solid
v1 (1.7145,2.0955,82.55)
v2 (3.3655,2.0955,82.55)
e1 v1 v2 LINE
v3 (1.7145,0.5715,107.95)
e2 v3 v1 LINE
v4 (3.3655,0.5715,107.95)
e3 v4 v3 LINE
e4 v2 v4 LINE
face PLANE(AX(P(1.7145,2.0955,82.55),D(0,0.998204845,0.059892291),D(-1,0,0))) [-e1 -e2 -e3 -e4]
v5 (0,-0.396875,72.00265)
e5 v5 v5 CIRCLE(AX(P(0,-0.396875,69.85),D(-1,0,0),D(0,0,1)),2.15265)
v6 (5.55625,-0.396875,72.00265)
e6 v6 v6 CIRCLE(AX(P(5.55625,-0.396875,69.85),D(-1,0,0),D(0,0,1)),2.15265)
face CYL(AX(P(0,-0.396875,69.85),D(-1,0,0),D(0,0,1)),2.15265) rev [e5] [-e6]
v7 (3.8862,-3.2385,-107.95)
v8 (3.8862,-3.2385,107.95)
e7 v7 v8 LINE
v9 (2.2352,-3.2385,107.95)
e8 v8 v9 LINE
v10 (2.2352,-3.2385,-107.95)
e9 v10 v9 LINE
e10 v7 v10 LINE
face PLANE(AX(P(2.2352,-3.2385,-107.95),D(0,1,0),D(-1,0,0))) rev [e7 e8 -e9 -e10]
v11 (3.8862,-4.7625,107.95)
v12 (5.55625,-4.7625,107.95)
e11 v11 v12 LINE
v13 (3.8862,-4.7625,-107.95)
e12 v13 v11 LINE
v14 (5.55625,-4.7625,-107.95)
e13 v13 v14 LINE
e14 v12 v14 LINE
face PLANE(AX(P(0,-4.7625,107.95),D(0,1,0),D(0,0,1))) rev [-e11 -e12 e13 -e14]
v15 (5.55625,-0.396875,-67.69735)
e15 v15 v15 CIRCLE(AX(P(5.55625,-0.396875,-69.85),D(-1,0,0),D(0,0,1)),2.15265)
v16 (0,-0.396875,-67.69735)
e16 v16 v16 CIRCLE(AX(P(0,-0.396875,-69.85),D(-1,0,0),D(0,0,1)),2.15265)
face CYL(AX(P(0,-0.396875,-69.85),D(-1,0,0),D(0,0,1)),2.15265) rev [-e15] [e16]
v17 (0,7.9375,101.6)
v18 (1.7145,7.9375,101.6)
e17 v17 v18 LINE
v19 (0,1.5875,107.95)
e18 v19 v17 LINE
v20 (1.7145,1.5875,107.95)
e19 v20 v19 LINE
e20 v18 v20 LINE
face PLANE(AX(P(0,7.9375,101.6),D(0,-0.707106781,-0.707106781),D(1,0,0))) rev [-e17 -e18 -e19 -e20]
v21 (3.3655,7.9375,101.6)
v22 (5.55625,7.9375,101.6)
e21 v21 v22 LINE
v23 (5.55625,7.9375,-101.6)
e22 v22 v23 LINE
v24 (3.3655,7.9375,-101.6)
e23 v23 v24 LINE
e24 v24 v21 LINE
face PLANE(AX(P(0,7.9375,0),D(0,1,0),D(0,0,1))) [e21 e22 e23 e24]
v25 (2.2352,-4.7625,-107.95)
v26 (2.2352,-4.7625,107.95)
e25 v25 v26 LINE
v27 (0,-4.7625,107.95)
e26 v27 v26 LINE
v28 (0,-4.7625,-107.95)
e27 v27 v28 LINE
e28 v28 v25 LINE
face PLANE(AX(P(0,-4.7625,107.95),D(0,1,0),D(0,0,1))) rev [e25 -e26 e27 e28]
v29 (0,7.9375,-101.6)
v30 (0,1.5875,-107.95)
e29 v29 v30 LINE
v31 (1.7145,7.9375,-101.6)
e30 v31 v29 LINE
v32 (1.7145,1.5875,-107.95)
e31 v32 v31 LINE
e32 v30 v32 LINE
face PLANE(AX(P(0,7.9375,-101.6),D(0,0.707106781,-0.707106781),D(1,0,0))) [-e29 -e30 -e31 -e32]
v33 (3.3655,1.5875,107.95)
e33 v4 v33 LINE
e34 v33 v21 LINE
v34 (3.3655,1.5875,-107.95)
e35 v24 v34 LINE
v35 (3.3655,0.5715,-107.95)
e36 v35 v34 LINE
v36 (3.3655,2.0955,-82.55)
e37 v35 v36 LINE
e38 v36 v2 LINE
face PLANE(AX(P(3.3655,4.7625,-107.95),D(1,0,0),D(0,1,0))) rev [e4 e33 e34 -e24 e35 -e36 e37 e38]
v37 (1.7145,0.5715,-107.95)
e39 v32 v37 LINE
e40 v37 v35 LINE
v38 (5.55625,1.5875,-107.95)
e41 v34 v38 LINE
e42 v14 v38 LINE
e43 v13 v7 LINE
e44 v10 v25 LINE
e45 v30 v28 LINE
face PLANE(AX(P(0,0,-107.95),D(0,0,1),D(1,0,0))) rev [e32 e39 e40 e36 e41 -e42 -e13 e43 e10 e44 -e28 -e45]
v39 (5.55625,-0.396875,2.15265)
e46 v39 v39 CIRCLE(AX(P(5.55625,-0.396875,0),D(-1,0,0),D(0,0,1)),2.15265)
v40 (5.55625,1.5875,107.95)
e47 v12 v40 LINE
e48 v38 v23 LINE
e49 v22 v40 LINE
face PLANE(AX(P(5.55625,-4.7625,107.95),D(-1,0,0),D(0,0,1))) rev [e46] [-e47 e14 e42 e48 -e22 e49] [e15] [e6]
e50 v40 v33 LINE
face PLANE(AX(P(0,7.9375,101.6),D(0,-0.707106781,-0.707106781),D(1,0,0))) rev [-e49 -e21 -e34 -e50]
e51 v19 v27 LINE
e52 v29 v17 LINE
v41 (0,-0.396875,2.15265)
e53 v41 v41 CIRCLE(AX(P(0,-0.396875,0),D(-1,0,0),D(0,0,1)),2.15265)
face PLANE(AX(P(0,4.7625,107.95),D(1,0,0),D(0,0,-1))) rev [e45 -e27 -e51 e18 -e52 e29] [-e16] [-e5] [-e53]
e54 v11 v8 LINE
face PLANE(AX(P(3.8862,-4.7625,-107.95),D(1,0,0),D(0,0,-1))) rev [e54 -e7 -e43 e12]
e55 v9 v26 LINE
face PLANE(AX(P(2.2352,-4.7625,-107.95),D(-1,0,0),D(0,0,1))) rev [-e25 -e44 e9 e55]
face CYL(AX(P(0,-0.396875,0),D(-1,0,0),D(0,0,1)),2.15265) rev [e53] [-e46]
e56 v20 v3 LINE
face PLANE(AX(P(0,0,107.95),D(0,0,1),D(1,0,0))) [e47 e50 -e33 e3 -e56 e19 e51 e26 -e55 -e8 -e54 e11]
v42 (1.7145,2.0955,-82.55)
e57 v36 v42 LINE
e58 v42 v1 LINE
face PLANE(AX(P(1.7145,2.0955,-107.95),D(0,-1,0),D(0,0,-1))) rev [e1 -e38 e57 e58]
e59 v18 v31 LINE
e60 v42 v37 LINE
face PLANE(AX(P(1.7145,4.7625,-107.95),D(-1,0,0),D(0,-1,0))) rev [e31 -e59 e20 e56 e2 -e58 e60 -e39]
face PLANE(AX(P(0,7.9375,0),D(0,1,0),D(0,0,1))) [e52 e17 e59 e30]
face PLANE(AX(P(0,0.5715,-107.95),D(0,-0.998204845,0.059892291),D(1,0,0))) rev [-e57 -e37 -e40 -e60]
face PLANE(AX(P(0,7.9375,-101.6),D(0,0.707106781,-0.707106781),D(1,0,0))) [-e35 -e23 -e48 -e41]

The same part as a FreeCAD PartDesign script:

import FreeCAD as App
import Part
import Sketcher
Q = App.Units.Quantity


def edges_at(feature, points):
    """Names of the edges that pass closest to the given points."""
    edges = feature.Shape.Edges
    near = lambda p: min(range(len(edges)), key=lambda i: edges[i].distToShape(Part.Vertex(*p))[0])
    return sorted({f"Edge{near(p) + 1}" for p in points})


def add_polygon(sketch, points):
    """Adds a closed chain of lines whose ends are joined by coincident constraints."""
    first, n = sketch.GeometryCount, len(points)
    for a, b in zip(points, points[1:] + points[:1]):
        sketch.addGeometry(Part.LineSegment(App.Vector(*a, 0), App.Vector(*b, 0)), False)
    for i in range(n):
        sketch.addConstraint(Sketcher.Constraint("Coincident", first + i, 2, first + (i + 1) % n, 1))

doc = App.newDocument("Part")
params = doc.addObject("Spreadsheet::Sheet", "Params")
for row, (alias, value) in enumerate([
    ("sketch1_width", "0.21875 in"),
    ("sketch1_height", "0.375 in"),
    ("pad1_length", "8.5 in"),
    ("sketch2_width", "0.065 in"),
    ("sketch2_height", "0.105 in"),
    ("sketch3_height", "0.06 in"),
    ("sketch3_width", "0.065 in"),
    ("hole_diameter", "0.1695 in"),
    ("chamfer_size", "0.06 in"),
    ("chamfer_size2", "1 in"),
    ("chamfer2_size", "1 in"),
    ("chamfer2_size2", "0.06 in"),
    ("sketch5_height", "8.5 in"),
    ("pad2_length", "0.125 in"),
    ("chamfer3_size", "0.25 in"),
], start=1):
    params.set(f"A{row}", alias)
    params.set(f"B{row}", "=" + value)
    params.setAlias(f"B{row}", alias)

body = doc.addObject("PartDesign::Body", "Body")

# Sketch on XY plane
sketch1 = body.newObject("Sketcher::SketchObject", "Sketch")
sketch1.AttachmentSupport = (doc.getObject("XY_Plane"), [""])
sketch1.MapMode = "FlatFace"
add_polygon(sketch1, [(0, 5), (0, -5), (6, -5), (6, 5)])  # lines 0-3
sketch1.addConstraint(Sketcher.Constraint("Vertical", 0))
sketch1.addConstraint(Sketcher.Constraint("Horizontal", 1))
sketch1.addConstraint(Sketcher.Constraint("Vertical", 2))
sketch1.addConstraint(Sketcher.Constraint("Horizontal", 3))
sketch1.addConstraint(Sketcher.Constraint("Symmetric", 0, 2, 3, 2, -1, 1))
sketch1.addConstraint(Sketcher.Constraint("DistanceX", 1, 1, 1, 2, Q("0.21875 in")))
sketch1.addConstraint(Sketcher.Constraint("DistanceY", 0, 2, 0, 1, Q("0.375 in")))
sketch1.setExpression("Constraints[9]", "Params.sketch1_width")
sketch1.setExpression("Constraints[10]", "Params.sketch1_height")
pad1 = body.newObject("PartDesign::Pad", "Pad")
pad1.Profile = sketch1
pad1.setExpression("Length", "Params.pad1_length")
pad1.Midplane = True

# Sketch on XY plane
sketch2 = body.newObject("Sketcher::SketchObject", "Sketch001")
sketch2.AttachmentSupport = (doc.getObject("XY_Plane"), [""])
sketch2.MapMode = "FlatFace"
sketch2.AttachmentOffset = App.Placement(App.Vector(0, 0, 4.25 * 25.4), App.Rotation())
add_polygon(sketch2, [(1.7, 4.8), (1.7, 2.1), (3.4, 2.1), (3.4, 4.8)])  # lines 0-3
sketch2.addConstraint(Sketcher.Constraint("Vertical", 0))
sketch2.addConstraint(Sketcher.Constraint("Horizontal", 1))
sketch2.addConstraint(Sketcher.Constraint("Vertical", 2))
sketch2.addConstraint(Sketcher.Constraint("Horizontal", 3))
sketch2.addConstraint(Sketcher.Constraint("DistanceX", 1, 1, 1, 2, Q("0.065 in")))
sketch2.addConstraint(Sketcher.Constraint("DistanceY", 0, 2, 0, 1, Q("0.105 in")))
sketch2.addConstraint(Sketcher.Constraint("DistanceY", -1, 1, 2, 2, Q("0.1875 in")))
sketch2.addConstraint(Sketcher.Constraint("DistanceX", -1, 1, 0, 2, Q("0.0675 in")))
sketch2.setExpression("Constraints[8]", "Params.sketch2_width")
sketch2.setExpression("Constraints[9]", "Params.sketch2_height")
pocket1 = body.newObject("PartDesign::Pocket", "Pocket")
pocket1.Profile = sketch2
pocket1.Type = "ThroughAll"

# Sketch on XY plane
sketch3 = body.newObject("Sketcher::SketchObject", "Sketch002")
sketch3.AttachmentSupport = (doc.getObject("XY_Plane"), [""])
sketch3.MapMode = "FlatFace"
sketch3.AttachmentOffset = App.Placement(App.Vector(0, 0, 4.25 * 25.4), App.Rotation())
add_polygon(sketch3, [(2.2, -3.2), (2.2, -4.8), (3.9, -4.8), (3.9, -3.2)])  # lines 0-3
sketch3.addConstraint(Sketcher.Constraint("Vertical", 0))
sketch3.addConstraint(Sketcher.Constraint("Horizontal", 1))
sketch3.addConstraint(Sketcher.Constraint("Vertical", 2))
sketch3.addConstraint(Sketcher.Constraint("Horizontal", 3))
sketch3.addConstraint(Sketcher.Constraint("DistanceY", 0, 2, 0, 1, Q("0.06 in")))
sketch3.addConstraint(Sketcher.Constraint("DistanceX", 1, 1, 1, 2, Q("0.065 in")))
sketch3.addConstraint(Sketcher.Constraint("DistanceX", -1, 1, 0, 2, Q("0.088 in")))
sketch3.addConstraint(Sketcher.Constraint("DistanceY", 0, 2, -1, 1, Q("0.1875 in")))
sketch3.setExpression("Constraints[8]", "Params.sketch3_height")
sketch3.setExpression("Constraints[9]", "Params.sketch3_width")
pocket2 = body.newObject("PartDesign::Pocket", "Pocket001")
pocket2.Profile = sketch3
pocket2.Type = "ThroughAll"

# Sketch on YZ plane
sketch4 = body.newObject("Sketcher::SketchObject", "Sketch003")
sketch4.AttachmentSupport = (doc.getObject("YZ_Plane"), [""])
sketch4.MapMode = "FlatFace"
sketch4.addGeometry(Part.Circle(App.Vector(-0.4, 69.8, 0), App.Vector(0, 0, 1), 2.2), False)
sketch4.addGeometry(Part.Circle(App.Vector(-0.4, -69.8, 0), App.Vector(0, 0, 1), 2.2), False)
sketch4.addGeometry(Part.Circle(App.Vector(-0.4, 0, 0), App.Vector(0, 0, 1), 2.2), False)
sketch4.addConstraint(Sketcher.Constraint("Equal", 0, 1))
sketch4.addConstraint(Sketcher.Constraint("Equal", 1, 2))
sketch4.addConstraint(Sketcher.Constraint("Symmetric", 0, 3, 1, 3, -1))
sketch4.addConstraint(Sketcher.Constraint("PointOnObject", 2, 3, -1))
sketch4.addConstraint(Sketcher.Constraint("Vertical", 1, 3, 2, 3))
sketch4.addConstraint(Sketcher.Constraint("Diameter", 0, Q("0.1695 in")))
sketch4.addConstraint(Sketcher.Constraint("DistanceY", 1, 3, 0, 3, Q("5.5 in")))
sketch4.addConstraint(Sketcher.Constraint("DistanceX", 0, 3, -1, 1, Q("0.015625 in")))
doc.recompute()
hole = body.newObject("PartDesign::Hole", "Hole")
hole.Profile = sketch4
hole.ThreadType = "None"
hole.setExpression("Diameter", "Params.hole_diameter")
hole.DepthType = "ThroughAll"
hole.Reversed = True
doc.recompute()

chamfer = body.newObject("PartDesign::Chamfer", "Chamfer")
chamfer.Base = (hole, edges_at(hole, [(2.54, 2.095, 107.95)]))
chamfer.ChamferType = "Two distances"
chamfer.setExpression("Size", "Params.chamfer_size")
chamfer.setExpression("Size2", "Params.chamfer_size2")
doc.recompute()

chamfer2 = body.newObject("PartDesign::Chamfer", "Chamfer001")
chamfer2.Base = (chamfer, edges_at(chamfer, [(2.54, 2.095, -107.95)]))
chamfer2.ChamferType = "Two distances"
chamfer2.setExpression("Size", "Params.chamfer2_size")
chamfer2.setExpression("Size2", "Params.chamfer2_size2")

# Sketch on XZ plane
sketch5 = body.newObject("Sketcher::SketchObject", "Sketch004")
sketch5.AttachmentSupport = (doc.getObject("XZ_Plane"), [""])
sketch5.MapMode = "FlatFace"
sketch5.AttachmentOffset = App.Placement(App.Vector(0, 0, -0.1875 * 25.4), App.Rotation())
add_polygon(sketch5, [(0, -108), (0, 108), (1.7, 108), (1.7, -108)])  # lines 0-3
add_polygon(sketch5, [(3.4, -108), (3.4, 108), (5.6, 108), (5.6, -108)])  # lines 4-7
sketch5.addConstraint(Sketcher.Constraint("Vertical", 0))
sketch5.addConstraint(Sketcher.Constraint("Horizontal", 1))
sketch5.addConstraint(Sketcher.Constraint("Vertical", 2))
sketch5.addConstraint(Sketcher.Constraint("Horizontal", 3))
sketch5.addConstraint(Sketcher.Constraint("Vertical", 4))
sketch5.addConstraint(Sketcher.Constraint("Horizontal", 5))
sketch5.addConstraint(Sketcher.Constraint("Vertical", 6))
sketch5.addConstraint(Sketcher.Constraint("Horizontal", 7))
sketch5.addConstraint(Sketcher.Constraint("Symmetric", 0, 2, 3, 2, -1, 1))
sketch5.addConstraint(Sketcher.Constraint("Horizontal", 1, 2, 4, 2))
sketch5.addConstraint(Sketcher.Constraint("Horizontal", 3, 2, 6, 2))
sketch5.addConstraint(Sketcher.Constraint("DistanceY", 0, 1, 0, 2, Q("8.5 in")))
sketch5.addConstraint(Sketcher.Constraint("DistanceX", 1, 1, 1, 2, Q("0.0675 in")))
sketch5.addConstraint(Sketcher.Constraint("DistanceX", -1, 1, 5, 2, Q("0.21875 in")))
sketch5.addConstraint(Sketcher.Constraint("DistanceX", 1, 2, 4, 2, Q("0.065 in")))
sketch5.setExpression("Constraints[19]", "Params.sketch5_height")
pad2 = body.newObject("PartDesign::Pad", "Pad001")
pad2.Profile = sketch5
pad2.setExpression("Length", "Params.pad2_length")
pad2.Reversed = True
doc.recompute()

chamfer3 = body.newObject("PartDesign::Chamfer", "Chamfer002")
chamfer3.Base = (pad2, edges_at(pad2, [
    (4.461, 7.938, -107.95),
    (4.461, 7.938, 107.95),
    (0.857, 7.938, 107.95),
    (0.857, 7.938, -107.95),
]))
chamfer3.setExpression("Size", "Params.chamfer3_size")

doc.recompute()
